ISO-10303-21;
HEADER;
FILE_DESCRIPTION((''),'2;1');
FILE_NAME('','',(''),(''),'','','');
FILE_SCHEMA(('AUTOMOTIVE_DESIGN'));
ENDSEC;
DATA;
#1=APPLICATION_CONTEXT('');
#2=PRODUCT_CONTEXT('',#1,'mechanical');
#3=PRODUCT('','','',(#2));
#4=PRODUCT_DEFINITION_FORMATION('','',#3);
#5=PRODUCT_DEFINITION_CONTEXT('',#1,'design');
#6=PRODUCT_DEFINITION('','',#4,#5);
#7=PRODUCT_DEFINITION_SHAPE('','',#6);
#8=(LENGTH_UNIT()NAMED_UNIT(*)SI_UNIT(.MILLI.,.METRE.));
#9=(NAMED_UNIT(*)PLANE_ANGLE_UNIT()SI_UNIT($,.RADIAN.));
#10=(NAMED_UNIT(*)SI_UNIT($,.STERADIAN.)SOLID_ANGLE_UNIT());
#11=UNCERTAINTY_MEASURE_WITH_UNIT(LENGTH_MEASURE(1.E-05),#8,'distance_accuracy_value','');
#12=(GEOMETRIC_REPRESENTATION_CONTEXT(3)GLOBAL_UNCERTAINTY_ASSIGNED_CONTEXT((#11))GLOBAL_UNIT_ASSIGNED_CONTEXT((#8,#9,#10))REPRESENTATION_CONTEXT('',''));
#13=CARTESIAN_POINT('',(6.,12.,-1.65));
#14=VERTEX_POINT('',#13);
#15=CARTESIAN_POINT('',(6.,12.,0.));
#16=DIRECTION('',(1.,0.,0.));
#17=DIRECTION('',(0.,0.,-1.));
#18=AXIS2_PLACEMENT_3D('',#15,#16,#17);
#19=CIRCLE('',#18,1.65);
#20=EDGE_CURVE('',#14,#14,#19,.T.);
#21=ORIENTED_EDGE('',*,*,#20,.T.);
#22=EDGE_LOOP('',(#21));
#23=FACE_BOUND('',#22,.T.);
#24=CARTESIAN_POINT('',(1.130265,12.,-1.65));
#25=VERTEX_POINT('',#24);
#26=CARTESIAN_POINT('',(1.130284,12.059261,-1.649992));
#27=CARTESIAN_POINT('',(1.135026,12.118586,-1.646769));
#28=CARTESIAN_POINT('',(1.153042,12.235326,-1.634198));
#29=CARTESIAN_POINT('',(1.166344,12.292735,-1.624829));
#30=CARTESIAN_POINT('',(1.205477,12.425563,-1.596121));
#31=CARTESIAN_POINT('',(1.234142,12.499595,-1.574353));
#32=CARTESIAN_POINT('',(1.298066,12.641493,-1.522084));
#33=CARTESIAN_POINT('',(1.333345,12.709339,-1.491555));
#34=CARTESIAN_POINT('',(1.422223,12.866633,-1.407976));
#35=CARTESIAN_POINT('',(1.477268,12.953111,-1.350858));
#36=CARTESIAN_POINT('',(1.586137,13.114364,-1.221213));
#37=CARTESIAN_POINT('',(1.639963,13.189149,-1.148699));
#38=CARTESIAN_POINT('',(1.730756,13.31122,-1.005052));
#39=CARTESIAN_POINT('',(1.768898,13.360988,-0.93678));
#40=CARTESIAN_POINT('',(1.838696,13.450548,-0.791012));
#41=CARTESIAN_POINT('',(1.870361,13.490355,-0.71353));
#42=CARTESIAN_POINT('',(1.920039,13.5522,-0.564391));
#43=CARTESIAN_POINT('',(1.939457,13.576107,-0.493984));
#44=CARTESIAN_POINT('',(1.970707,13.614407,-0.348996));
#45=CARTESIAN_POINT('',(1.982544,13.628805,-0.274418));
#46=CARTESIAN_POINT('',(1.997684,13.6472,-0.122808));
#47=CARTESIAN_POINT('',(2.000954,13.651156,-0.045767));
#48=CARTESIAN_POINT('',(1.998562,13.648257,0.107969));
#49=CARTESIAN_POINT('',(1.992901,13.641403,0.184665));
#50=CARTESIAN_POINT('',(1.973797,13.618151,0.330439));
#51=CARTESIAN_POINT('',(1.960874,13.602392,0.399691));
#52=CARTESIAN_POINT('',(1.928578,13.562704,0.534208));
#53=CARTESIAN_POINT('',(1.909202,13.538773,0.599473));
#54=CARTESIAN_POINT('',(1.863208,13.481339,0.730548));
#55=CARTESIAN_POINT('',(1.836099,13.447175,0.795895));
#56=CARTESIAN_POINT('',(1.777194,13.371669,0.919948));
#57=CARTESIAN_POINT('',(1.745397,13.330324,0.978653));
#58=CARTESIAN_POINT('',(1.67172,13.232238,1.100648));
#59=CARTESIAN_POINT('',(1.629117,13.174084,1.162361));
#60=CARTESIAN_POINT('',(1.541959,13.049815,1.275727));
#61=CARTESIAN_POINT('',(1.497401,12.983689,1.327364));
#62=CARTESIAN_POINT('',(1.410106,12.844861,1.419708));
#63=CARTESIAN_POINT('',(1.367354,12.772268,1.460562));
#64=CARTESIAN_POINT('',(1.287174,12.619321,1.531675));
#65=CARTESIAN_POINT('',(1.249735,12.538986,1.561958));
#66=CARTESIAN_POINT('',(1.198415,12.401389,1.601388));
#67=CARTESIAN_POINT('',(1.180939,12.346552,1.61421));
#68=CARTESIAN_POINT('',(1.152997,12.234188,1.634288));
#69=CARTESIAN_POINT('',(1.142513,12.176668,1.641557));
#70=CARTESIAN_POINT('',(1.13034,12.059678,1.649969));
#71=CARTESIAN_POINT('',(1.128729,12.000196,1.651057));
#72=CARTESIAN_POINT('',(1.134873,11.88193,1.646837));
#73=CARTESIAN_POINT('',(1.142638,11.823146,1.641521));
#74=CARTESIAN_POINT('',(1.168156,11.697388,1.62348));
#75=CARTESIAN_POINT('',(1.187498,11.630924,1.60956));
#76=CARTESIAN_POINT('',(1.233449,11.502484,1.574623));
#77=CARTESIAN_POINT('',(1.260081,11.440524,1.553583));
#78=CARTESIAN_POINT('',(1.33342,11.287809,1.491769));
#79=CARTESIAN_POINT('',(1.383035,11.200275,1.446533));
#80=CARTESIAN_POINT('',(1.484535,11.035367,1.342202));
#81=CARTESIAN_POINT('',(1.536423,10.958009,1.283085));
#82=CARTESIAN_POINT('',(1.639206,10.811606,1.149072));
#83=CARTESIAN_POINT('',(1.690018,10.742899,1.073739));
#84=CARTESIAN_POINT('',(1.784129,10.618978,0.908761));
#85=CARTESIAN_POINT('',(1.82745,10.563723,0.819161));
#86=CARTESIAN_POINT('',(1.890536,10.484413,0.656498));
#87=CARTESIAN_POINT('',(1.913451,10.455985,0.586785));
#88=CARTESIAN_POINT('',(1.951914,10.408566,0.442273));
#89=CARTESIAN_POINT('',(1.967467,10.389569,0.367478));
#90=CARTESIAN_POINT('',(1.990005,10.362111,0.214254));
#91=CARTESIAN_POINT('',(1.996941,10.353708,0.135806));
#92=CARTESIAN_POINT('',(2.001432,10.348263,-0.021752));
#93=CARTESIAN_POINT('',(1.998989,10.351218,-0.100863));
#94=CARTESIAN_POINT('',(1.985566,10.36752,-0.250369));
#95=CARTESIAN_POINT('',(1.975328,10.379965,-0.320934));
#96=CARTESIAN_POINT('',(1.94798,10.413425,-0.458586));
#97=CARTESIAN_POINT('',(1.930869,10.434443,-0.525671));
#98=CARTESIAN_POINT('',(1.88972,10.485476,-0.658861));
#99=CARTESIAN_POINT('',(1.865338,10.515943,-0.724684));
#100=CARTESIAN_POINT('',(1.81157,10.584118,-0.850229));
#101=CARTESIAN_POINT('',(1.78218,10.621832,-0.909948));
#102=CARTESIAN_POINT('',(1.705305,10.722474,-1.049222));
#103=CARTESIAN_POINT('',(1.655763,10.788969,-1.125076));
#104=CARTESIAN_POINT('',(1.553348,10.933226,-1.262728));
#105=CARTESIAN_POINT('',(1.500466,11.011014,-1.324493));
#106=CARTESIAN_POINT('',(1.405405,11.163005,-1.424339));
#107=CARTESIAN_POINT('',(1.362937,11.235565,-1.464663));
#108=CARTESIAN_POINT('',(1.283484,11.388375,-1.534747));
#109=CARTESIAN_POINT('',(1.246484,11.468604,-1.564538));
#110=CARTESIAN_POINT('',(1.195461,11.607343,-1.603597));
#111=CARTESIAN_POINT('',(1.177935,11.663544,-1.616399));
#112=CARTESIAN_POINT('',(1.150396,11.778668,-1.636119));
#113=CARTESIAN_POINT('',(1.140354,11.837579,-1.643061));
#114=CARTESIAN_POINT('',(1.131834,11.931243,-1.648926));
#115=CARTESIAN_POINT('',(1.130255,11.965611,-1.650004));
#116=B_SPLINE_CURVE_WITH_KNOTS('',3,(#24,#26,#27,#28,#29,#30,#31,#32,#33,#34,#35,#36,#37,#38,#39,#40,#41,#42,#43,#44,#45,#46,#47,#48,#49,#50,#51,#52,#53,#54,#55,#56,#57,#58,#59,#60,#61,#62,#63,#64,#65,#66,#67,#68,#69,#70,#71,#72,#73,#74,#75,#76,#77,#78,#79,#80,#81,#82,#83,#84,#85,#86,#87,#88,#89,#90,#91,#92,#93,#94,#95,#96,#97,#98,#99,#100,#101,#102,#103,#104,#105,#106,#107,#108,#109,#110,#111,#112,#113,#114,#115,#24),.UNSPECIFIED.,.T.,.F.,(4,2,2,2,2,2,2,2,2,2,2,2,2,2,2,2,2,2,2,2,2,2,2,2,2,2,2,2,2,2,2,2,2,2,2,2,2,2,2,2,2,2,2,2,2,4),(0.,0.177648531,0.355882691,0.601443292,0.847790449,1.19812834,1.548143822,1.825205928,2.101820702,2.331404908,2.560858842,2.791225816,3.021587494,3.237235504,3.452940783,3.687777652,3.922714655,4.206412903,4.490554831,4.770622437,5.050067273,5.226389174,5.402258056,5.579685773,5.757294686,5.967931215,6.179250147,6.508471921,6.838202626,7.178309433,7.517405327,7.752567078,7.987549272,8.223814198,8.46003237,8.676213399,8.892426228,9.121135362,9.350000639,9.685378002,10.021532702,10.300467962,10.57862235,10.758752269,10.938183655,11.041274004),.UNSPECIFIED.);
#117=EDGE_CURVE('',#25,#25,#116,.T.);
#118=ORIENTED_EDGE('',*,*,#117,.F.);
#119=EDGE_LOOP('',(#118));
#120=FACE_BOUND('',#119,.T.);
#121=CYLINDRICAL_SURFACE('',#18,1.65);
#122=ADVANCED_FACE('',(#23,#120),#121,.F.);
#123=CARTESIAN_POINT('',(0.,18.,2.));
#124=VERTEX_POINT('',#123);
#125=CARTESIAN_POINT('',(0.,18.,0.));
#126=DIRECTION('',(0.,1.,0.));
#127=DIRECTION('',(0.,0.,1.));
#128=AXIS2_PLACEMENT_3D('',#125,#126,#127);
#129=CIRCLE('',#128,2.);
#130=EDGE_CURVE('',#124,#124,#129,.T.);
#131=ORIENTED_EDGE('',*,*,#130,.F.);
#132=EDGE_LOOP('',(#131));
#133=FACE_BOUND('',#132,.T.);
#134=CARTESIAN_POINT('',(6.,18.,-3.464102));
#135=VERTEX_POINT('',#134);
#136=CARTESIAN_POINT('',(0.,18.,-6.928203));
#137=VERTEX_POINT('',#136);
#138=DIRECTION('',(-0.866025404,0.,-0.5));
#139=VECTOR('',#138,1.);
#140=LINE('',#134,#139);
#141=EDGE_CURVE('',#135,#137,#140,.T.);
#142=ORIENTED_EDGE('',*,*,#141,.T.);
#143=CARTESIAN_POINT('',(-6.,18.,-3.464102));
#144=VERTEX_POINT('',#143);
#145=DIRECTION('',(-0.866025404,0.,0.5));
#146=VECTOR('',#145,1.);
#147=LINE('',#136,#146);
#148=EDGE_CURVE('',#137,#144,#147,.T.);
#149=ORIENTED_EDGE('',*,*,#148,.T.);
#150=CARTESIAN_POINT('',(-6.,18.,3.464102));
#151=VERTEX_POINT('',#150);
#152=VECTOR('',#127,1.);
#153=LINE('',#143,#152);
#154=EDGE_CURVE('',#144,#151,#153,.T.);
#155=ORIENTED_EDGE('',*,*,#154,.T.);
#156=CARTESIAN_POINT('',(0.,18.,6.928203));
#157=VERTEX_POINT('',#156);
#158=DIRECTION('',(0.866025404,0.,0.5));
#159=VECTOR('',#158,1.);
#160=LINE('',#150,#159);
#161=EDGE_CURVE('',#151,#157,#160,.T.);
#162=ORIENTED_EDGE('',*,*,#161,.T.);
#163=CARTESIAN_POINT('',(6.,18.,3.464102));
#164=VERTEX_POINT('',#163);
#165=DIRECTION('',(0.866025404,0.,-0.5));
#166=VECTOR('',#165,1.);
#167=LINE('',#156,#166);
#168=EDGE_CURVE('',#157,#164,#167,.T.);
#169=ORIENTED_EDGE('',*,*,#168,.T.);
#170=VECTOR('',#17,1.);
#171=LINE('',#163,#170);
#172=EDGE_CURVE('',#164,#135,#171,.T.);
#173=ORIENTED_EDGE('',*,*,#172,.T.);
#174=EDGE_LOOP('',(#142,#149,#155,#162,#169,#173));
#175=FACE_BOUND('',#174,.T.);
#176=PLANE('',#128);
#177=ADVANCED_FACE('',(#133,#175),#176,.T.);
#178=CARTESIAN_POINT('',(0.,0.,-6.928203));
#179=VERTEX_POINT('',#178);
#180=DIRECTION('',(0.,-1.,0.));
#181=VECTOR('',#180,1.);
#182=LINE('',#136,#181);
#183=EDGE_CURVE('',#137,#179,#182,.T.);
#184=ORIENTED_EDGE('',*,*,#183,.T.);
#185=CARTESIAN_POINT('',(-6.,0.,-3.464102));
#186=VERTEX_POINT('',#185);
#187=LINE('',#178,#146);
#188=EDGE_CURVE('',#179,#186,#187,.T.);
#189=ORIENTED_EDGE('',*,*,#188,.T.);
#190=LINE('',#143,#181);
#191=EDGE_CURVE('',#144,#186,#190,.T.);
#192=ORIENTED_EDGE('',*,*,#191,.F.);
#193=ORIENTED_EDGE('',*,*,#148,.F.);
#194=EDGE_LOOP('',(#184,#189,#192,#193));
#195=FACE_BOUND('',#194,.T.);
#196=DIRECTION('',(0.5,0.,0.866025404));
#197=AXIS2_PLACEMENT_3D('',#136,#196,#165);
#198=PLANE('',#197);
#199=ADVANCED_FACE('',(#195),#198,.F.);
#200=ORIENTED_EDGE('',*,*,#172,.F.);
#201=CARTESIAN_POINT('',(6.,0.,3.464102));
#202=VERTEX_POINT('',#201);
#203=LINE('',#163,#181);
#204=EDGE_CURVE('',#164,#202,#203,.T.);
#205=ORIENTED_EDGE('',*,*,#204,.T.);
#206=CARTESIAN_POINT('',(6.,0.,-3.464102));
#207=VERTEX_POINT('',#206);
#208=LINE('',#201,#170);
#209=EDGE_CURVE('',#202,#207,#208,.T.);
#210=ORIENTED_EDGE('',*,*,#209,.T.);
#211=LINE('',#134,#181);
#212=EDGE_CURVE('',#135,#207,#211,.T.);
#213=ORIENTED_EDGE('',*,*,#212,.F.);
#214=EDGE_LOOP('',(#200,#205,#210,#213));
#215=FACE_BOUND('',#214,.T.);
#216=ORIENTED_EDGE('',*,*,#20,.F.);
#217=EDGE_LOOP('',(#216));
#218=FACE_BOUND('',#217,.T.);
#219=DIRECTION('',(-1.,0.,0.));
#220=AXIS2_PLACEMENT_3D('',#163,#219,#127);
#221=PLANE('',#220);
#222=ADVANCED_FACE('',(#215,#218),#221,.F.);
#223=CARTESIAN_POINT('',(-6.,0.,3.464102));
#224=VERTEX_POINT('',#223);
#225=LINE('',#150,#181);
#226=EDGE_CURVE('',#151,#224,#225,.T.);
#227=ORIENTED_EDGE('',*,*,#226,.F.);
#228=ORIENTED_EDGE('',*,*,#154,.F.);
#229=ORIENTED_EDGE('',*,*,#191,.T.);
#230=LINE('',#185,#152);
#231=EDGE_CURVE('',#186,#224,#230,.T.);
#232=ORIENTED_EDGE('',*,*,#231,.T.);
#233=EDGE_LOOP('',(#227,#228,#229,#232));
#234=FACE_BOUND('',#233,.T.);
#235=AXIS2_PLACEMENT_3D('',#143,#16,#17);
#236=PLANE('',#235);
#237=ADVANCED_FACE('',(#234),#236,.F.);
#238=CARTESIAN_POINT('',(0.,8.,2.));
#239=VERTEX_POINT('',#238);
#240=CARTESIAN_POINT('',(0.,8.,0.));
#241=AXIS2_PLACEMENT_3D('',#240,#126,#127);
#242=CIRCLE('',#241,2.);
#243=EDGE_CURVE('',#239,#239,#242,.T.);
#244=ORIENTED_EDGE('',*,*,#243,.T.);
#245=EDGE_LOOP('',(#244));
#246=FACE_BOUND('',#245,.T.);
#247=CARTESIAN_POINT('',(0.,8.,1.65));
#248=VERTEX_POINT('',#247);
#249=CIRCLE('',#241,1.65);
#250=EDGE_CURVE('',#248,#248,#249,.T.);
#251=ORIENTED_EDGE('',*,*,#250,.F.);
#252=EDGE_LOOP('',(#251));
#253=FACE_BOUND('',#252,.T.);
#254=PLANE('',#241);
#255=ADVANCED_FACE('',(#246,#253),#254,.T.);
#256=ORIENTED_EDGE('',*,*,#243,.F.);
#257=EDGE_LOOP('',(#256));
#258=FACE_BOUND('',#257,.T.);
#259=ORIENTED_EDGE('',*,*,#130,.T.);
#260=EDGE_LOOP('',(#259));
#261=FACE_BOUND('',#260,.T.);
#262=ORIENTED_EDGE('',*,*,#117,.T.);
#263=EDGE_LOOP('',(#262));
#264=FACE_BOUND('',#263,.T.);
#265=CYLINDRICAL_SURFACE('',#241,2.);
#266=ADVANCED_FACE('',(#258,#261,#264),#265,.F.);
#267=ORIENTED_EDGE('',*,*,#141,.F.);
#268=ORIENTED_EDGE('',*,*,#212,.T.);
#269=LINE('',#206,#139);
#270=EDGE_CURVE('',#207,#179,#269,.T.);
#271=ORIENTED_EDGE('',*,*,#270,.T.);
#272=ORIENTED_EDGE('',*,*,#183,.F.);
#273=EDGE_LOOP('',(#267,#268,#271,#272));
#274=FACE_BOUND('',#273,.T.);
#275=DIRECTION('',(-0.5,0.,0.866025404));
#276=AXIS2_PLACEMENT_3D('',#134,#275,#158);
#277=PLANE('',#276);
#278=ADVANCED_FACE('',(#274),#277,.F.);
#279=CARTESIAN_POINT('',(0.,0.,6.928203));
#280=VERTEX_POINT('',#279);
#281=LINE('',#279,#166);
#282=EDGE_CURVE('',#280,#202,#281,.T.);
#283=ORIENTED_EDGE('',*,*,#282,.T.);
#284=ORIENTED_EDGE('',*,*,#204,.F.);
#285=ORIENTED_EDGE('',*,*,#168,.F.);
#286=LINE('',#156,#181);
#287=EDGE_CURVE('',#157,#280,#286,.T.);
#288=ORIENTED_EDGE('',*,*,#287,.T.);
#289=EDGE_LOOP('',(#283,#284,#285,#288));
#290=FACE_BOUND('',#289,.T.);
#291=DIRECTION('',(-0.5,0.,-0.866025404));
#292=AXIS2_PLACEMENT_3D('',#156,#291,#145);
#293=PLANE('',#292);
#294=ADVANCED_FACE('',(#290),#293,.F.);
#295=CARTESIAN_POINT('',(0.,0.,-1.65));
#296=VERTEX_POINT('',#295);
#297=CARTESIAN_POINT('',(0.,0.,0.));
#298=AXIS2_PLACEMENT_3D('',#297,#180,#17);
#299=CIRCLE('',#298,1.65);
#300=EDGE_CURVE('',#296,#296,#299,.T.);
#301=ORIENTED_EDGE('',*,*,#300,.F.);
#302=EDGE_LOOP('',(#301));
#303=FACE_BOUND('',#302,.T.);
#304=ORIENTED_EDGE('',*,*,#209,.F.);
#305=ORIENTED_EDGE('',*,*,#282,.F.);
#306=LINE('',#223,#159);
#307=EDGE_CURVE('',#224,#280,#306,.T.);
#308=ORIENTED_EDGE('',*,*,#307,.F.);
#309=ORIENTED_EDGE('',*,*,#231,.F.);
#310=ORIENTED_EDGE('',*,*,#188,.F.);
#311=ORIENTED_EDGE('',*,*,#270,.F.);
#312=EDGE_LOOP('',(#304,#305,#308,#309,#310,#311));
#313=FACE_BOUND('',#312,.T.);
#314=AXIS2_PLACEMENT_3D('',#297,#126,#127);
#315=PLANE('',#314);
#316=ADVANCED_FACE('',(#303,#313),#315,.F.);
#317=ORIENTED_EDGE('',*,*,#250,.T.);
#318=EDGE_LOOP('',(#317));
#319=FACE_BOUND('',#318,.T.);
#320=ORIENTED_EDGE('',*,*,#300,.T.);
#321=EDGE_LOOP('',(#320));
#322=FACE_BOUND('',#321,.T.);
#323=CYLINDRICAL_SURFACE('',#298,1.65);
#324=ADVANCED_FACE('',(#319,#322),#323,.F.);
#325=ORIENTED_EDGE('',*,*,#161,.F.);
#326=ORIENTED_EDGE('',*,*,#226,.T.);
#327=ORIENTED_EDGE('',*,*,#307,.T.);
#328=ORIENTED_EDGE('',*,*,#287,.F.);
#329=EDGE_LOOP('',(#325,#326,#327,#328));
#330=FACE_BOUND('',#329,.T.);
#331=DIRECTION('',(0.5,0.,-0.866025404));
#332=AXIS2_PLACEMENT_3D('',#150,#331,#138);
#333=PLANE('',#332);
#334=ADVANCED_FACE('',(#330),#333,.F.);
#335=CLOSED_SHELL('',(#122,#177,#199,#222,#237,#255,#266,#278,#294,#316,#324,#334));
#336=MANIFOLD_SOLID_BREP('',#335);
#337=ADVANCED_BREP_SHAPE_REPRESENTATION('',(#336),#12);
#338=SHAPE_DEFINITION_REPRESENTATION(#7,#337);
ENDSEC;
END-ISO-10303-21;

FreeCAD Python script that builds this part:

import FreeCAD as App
import Part
import Sketcher
Q = App.Units.Quantity

doc = App.newDocument("Part")
body = doc.addObject("PartDesign::Body", "Body")

# Sketch on XZ plane
sketch1 = body.newObject("Sketcher::SketchObject", "Sketch")
sketch1.AttachmentSupport = (doc.getObject("XZ_Plane"), [""])
sketch1.MapMode = "FlatFace"
sketch1.addGeometry(Part.LineSegment(App.Vector(-6, 3, 0), App.Vector(0, 7, 0)), False)
sketch1.addGeometry(Part.LineSegment(App.Vector(0, 7, 0), App.Vector(6, 3, 0)), False)
sketch1.addGeometry(Part.LineSegment(App.Vector(6, 3, 0), App.Vector(6, -3, 0)), False)
sketch1.addGeometry(Part.LineSegment(App.Vector(6, -3, 0), App.Vector(0, -7, 0)), False)
sketch1.addGeometry(Part.LineSegment(App.Vector(0, -7, 0), App.Vector(-6, -3, 0)), False)
sketch1.addGeometry(Part.LineSegment(App.Vector(-6, -3, 0), App.Vector(-6, 3, 0)), False)
sketch1.addConstraint(Sketcher.Constraint("Coincident", 0, 2, 1, 1))
sketch1.addConstraint(Sketcher.Constraint("Coincident", 1, 2, 2, 1))
sketch1.addConstraint(Sketcher.Constraint("Coincident", 2, 2, 3, 1))
sketch1.addConstraint(Sketcher.Constraint("Coincident", 3, 2, 4, 1))
sketch1.addConstraint(Sketcher.Constraint("Coincident", 4, 2, 5, 1))
sketch1.addConstraint(Sketcher.Constraint("Coincident", 5, 2, 0, 1))
sketch1.addConstraint(Sketcher.Constraint("Vertical", 2))
sketch1.addConstraint(Sketcher.Constraint("Vertical", 5))
sketch1.addConstraint(Sketcher.Constraint("Symmetric", 0, 2, 3, 2, -1, 1))
sketch1.addConstraint(Sketcher.Constraint("Symmetric", 1, 2, 4, 2, -1, 1))
sketch1.addConstraint(Sketcher.Constraint("PointOnObject", 0, 2, -2))
sketch1.addConstraint(Sketcher.Constraint("Parallel", 0, 3))
sketch1.addConstraint(Sketcher.Constraint("Horizontal", 2, 2, 4, 2))
sketch1.addConstraint(Sketcher.Constraint("Angle", 0, Q("30 deg")))
sketch1.addConstraint(Sketcher.Constraint("DistanceX", -1, 1, 1, 2, 6.0))
sketch1.addConstraint(Sketcher.Constraint("DistanceY", -1, 1, 1, 2, 3.464102))
pad1 = body.newObject("PartDesign::Pad", "Pad")
pad1.Profile = sketch1
pad1.Length = 18
pad1.Reversed = True

# Sketch on XZ plane
sketch2 = body.newObject("Sketcher::SketchObject", "Sketch001")
sketch2.AttachmentSupport = (doc.getObject("XZ_Plane"), [""])
sketch2.MapMode = "FlatFace"
sketch2.AttachmentOffset = App.Placement(App.Vector(0, 0, -18), App.Rotation())
sketch2.addGeometry(Part.Circle(App.Vector(0, 0, 0), App.Vector(0, 0, 1), 2), False)
sketch2.addConstraint(Sketcher.Constraint("Coincident", 0, 3, -1, 1))
sketch2.addConstraint(Sketcher.Constraint("Diameter", 0, 4.0))
pocket1 = body.newObject("PartDesign::Pocket", "Pocket")
pocket1.Profile = sketch2
pocket1.Length = 10
pocket1.Reversed = True

# Sketch on XZ plane
sketch3 = body.newObject("Sketcher::SketchObject", "Sketch002")
sketch3.AttachmentSupport = (doc.getObject("XZ_Plane"), [""])
sketch3.MapMode = "FlatFace"
sketch3.addGeometry(Part.Circle(App.Vector(0, 0, 0), App.Vector(0, 0, 1), 1.6), False)
sketch3.addConstraint(Sketcher.Constraint("Coincident", 0, 3, -1, 1))
sketch3.addConstraint(Sketcher.Constraint("Diameter", 0, 3.3))
doc.recompute()
hole = body.newObject("PartDesign::Hole", "Hole")
hole.Profile = sketch3
hole.ThreadType = "None"
hole.Diameter = 3.3
hole.DepthType = "ThroughAll"

# Sketch on YZ plane
sketch4 = body.newObject("Sketcher::SketchObject", "Sketch003")
sketch4.AttachmentSupport = (doc.getObject("YZ_Plane"), [""])
sketch4.MapMode = "FlatFace"
sketch4.AttachmentOffset = App.Placement(App.Vector(0, 0, 6), App.Rotation())
sketch4.addGeometry(Part.Circle(App.Vector(12, 0, 0), App.Vector(0, 0, 1), 1.6), False)
sketch4.addConstraint(Sketcher.Constraint("PointOnObject", 0, 3, -1))
sketch4.addConstraint(Sketcher.Constraint("Diameter", 0, 3.3))
sketch4.addConstraint(Sketcher.Constraint("DistanceX", -1, 1, 0, 3, 12.0))
doc.recompute()
hole2 = body.newObject("PartDesign::Hole", "Hole001")
hole2.Profile = sketch4
hole2.ThreadType = "None"
hole2.Diameter = 3.3
hole2.DepthType = "Dimension"
hole2.Depth = 7
hole2.DrillPoint = "Flat"

doc.recompute()
